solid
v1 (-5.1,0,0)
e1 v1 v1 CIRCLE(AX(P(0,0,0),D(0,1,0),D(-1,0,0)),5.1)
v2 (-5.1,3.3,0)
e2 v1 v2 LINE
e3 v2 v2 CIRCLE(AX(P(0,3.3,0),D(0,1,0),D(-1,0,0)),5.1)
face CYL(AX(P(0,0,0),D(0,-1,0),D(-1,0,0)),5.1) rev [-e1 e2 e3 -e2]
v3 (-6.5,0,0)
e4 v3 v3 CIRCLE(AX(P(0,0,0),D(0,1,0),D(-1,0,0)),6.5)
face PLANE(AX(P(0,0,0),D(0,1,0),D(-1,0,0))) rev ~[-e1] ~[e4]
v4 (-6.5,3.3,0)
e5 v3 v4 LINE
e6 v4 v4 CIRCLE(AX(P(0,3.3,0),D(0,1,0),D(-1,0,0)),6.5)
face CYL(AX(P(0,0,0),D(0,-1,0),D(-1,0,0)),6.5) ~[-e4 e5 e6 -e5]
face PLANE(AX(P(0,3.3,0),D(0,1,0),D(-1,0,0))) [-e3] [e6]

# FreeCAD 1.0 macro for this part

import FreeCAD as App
import Part
import Sketcher

V = App.Vector

doc = App.newDocument("Part")
params = doc.addObject("Spreadsheet::Sheet", "Params")
for row, (alias, value) in enumerate([
    ("sketch1_diameter", "13 mm"),
    ("sketch1_diameter2", "10.2 mm"),
    ("pad1_length", "3.3 mm"),
], start=1):
    params.set(f"A{row}", alias)
    params.set(f"B{row}", "=" + value)
    params.setAlias(f"B{row}", alias)

body = doc.addObject("PartDesign::Body", "Body")

sketch1 = body.newObject("Sketcher::SketchObject", "Sketch")
sketch1.AttachmentSupport = (doc.getObject("XZ_Plane"), [""])
sketch1.MapMode = "FlatFace"
sketch1.addGeometry(Part.Circle(V(0, 0, 0), V(0, 0, 1), 6), False)
sketch1.addGeometry(Part.Circle(V(0, 0, 0), V(0, 0, 1), 5), False)
sketch1.addConstraint(Sketcher.Constraint("Coincident", 0, 3, -1, 1))
sketch1.addConstraint(Sketcher.Constraint("Coincident", 1, 3, -1, 1))
sketch1.addConstraint(Sketcher.Constraint("Diameter", 0, 13.0))
sketch1.addConstraint(Sketcher.Constraint("Diameter", 1, 10.2))
sketch1.setExpression("Constraints[2]", "Params.sketch1_diameter")
sketch1.setExpression("Constraints[3]", "Params.sketch1_diameter2")
pad1 = body.newObject("PartDesign::Pad", "Pad")
pad1.Profile = sketch1
pad1.setExpression("Length", "Params.pad1_length")
pad1.Reversed = True

doc.recompute()
